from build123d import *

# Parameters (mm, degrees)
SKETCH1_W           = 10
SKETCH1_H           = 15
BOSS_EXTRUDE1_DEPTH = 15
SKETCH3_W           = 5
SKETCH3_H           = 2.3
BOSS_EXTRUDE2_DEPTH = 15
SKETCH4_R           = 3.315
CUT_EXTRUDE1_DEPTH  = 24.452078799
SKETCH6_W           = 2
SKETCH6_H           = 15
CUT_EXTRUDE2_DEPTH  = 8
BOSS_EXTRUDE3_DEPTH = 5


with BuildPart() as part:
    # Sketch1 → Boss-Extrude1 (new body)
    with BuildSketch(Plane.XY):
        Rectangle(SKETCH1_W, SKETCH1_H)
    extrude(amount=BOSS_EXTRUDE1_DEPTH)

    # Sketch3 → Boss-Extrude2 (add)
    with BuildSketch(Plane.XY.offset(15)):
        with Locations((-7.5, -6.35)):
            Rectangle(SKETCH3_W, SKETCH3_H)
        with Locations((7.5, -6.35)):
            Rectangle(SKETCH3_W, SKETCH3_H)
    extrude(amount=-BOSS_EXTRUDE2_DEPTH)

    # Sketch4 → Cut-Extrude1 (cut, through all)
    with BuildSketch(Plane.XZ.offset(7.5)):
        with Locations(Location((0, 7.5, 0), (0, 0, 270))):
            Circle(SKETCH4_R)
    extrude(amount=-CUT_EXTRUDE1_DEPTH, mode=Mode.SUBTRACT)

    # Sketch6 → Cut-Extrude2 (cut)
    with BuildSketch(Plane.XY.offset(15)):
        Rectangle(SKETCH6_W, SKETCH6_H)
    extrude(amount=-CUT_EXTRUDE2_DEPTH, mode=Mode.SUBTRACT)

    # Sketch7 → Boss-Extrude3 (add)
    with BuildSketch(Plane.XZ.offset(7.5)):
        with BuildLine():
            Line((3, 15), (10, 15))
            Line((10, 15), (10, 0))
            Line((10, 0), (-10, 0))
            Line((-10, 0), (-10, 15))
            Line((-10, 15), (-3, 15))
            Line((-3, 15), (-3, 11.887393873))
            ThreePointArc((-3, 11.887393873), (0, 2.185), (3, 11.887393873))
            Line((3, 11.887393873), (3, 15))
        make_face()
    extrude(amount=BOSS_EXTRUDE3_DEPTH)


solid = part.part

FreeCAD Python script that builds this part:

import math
import FreeCAD as App
import Part
import Sketcher

V = App.Vector
Q = App.Units.Quantity

doc = App.newDocument("Part")
body = doc.addObject("PartDesign::Body", "Body")

# Sketch on XY plane
sketch1 = doc.addObject("Sketcher::SketchObject", "Sketch")
body.addObject(sketch1)
sketch1.AttachmentSupport = (doc.XY_Plane, [""])
sketch1.MapMode = "FlatFace"
sketch1.addGeometry(Part.LineSegment(V(-5, 7.5, 0), V(-5, -7.5, 0)), False)
sketch1.addGeometry(Part.LineSegment(V(-5, -7.5, 0), V(5, -7.5, 0)), False)
sketch1.addGeometry(Part.LineSegment(V(5, -7.5, 0), V(5, 7.5, 0)), False)
sketch1.addGeometry(Part.LineSegment(V(5, 7.5, 0), V(-5, 7.5, 0)), False)
sketch1.addConstraint(Sketcher.Constraint("Coincident", 0, 2, 1, 1))
sketch1.addConstraint(Sketcher.Constraint("Coincident", 1, 2, 2, 1))
sketch1.addConstraint(Sketcher.Constraint("Coincident", 2, 2, 3, 1))
sketch1.addConstraint(Sketcher.Constraint("Coincident", 3, 2, 0, 1))
sketch1.addConstraint(Sketcher.Constraint("Vertical", 0))
sketch1.addConstraint(Sketcher.Constraint("Horizontal", 1))
sketch1.addConstraint(Sketcher.Constraint("Vertical", 2))
sketch1.addConstraint(Sketcher.Constraint("Horizontal", 3))
sketch1.addConstraint(Sketcher.Constraint("Symmetric", 0, 2, 2, 2, -1, 1))
sketch1.addConstraint(Sketcher.Constraint("DistanceX", 1, 1, 1, 2, Q("10 mm")))
sketch1.addConstraint(Sketcher.Constraint("DistanceY", 0, 2, 0, 1, Q("15 mm")))
pad1 = doc.addObject("PartDesign::Pad", "Pad")
body.addObject(pad1)
pad1.Profile = sketch1
pad1.Length = 15

# Sketch on XY plane
sketch2 = doc.addObject("Sketcher::SketchObject", "Sketch001")
body.addObject(sketch2)
sketch2.AttachmentSupport = (doc.XY_Plane, [""])
sketch2.MapMode = "FlatFace"
sketch2.AttachmentOffset = App.Placement(V(0, 0, 15), App.Rotation())
sketch2.addGeometry(Part.LineSegment(V(-10, -5.2, 0), V(-10, -7.5, 0)), False)
sketch2.addGeometry(Part.LineSegment(V(-10, -7.5, 0), V(-5, -7.5, 0)), False)
sketch2.addGeometry(Part.LineSegment(V(-5, -7.5, 0), V(-5, -5.2, 0)), False)
sketch2.addGeometry(Part.LineSegment(V(-5, -5.2, 0), V(-10, -5.2, 0)), False)
sketch2.addGeometry(Part.LineSegment(V(5, -5.2, 0), V(5, -7.5, 0)), False)
sketch2.addGeometry(Part.LineSegment(V(5, -7.5, 0), V(10, -7.5, 0)), False)
sketch2.addGeometry(Part.LineSegment(V(10, -7.5, 0), V(10, -5.2, 0)), False)
sketch2.addGeometry(Part.LineSegment(V(10, -5.2, 0), V(5, -5.2, 0)), False)
sketch2.addConstraint(Sketcher.Constraint("Coincident", 0, 2, 1, 1))
sketch2.addConstraint(Sketcher.Constraint("Coincident", 1, 2, 2, 1))
sketch2.addConstraint(Sketcher.Constraint("Coincident", 2, 2, 3, 1))
sketch2.addConstraint(Sketcher.Constraint("Coincident", 3, 2, 0, 1))
sketch2.addConstraint(Sketcher.Constraint("Coincident", 4, 2, 5, 1))
sketch2.addConstraint(Sketcher.Constraint("Coincident", 5, 2, 6, 1))
sketch2.addConstraint(Sketcher.Constraint("Coincident", 6, 2, 7, 1))
sketch2.addConstraint(Sketcher.Constraint("Coincident", 7, 2, 4, 1))
sketch2.addConstraint(Sketcher.Constraint("Vertical", 0))
sketch2.addConstraint(Sketcher.Constraint("Horizontal", 1))
sketch2.addConstraint(Sketcher.Constraint("Vertical", 2))
sketch2.addConstraint(Sketcher.Constraint("Horizontal", 3))
sketch2.addConstraint(Sketcher.Constraint("Vertical", 4))
sketch2.addConstraint(Sketcher.Constraint("Horizontal", 5))
sketch2.addConstraint(Sketcher.Constraint("Vertical", 6))
sketch2.addConstraint(Sketcher.Constraint("Horizontal", 7))
sketch2.addConstraint(Sketcher.Constraint("Symmetric", 1, 2, 4, 2, -2))
sketch2.addConstraint(Sketcher.Constraint("Symmetric", 3, 2, 6, 2, -2))
sketch2.addConstraint(Sketcher.Constraint("DistanceX", 1, 1, 1, 2, Q("5 mm")))
sketch2.addConstraint(Sketcher.Constraint("DistanceY", 0, 2, 0, 1, Q("2.3 mm")))
sketch2.addConstraint(Sketcher.Constraint("DistanceX", 0, 2, -1, 1, Q("10 mm")))
sketch2.addConstraint(Sketcher.Constraint("DistanceY", 0, 2, -1, 1, Q("7.5 mm")))
pad2 = doc.addObject("PartDesign::Pad", "Pad001")
body.addObject(pad2)
pad2.Profile = sketch2
pad2.Length = 15
pad2.Reversed = True

# Sketch on XZ plane
sketch3 = doc.addObject("Sketcher::SketchObject", "Sketch002")
body.addObject(sketch3)
sketch3.AttachmentSupport = (doc.XZ_Plane, [""])
sketch3.MapMode = "FlatFace"
sketch3.AttachmentOffset = App.Placement(V(0, 0, 7.5), App.Rotation())
sketch3.addGeometry(Part.Circle(V(0, 7.5, 0), V(0, 0, 1), 3.315), False)
sketch3.addConstraint(Sketcher.Constraint("PointOnObject", 0, 3, -2))
sketch3.addConstraint(Sketcher.Constraint("Diameter", 0, Q("6.63 mm")))
sketch3.addConstraint(Sketcher.Constraint("DistanceY", -1, 1, 0, 3, Q("7.5 mm")))
pocket1 = doc.addObject("PartDesign::Pocket", "Pocket")
body.addObject(pocket1)
pocket1.Profile = sketch3
pocket1.Type = "ThroughAll"

# Sketch on XY plane
sketch4 = doc.addObject("Sketcher::SketchObject", "Sketch003")
body.addObject(sketch4)
sketch4.AttachmentSupport = (doc.XY_Plane, [""])
sketch4.MapMode = "FlatFace"
sketch4.AttachmentOffset = App.Placement(V(0, 0, 15), App.Rotation())
sketch4.addGeometry(Part.LineSegment(V(-1, 7.5, 0), V(-1, -7.5, 0)), False)
sketch4.addGeometry(Part.LineSegment(V(-1, -7.5, 0), V(1, -7.5, 0)), False)
sketch4.addGeometry(Part.LineSegment(V(1, -7.5, 0), V(1, 7.5, 0)), False)
sketch4.addGeometry(Part.LineSegment(V(1, 7.5, 0), V(-1, 7.5, 0)), False)
sketch4.addConstraint(Sketcher.Constraint("Coincident", 0, 2, 1, 1))
sketch4.addConstraint(Sketcher.Constraint("Coincident", 1, 2, 2, 1))
sketch4.addConstraint(Sketcher.Constraint("Coincident", 2, 2, 3, 1))
sketch4.addConstraint(Sketcher.Constraint("Coincident", 3, 2, 0, 1))
sketch4.addConstraint(Sketcher.Constraint("Vertical", 0))
sketch4.addConstraint(Sketcher.Constraint("Horizontal", 1))
sketch4.addConstraint(Sketcher.Constraint("Vertical", 2))
sketch4.addConstraint(Sketcher.Constraint("Horizontal", 3))
sketch4.addConstraint(Sketcher.Constraint("Symmetric", 0, 2, 2, 2, -1, 1))
sketch4.addConstraint(Sketcher.Constraint("DistanceX", 1, 1, 1, 2, Q("2 mm")))
sketch4.addConstraint(Sketcher.Constraint("DistanceY", 0, 2, 0, 1, Q("15 mm")))
pocket2 = doc.addObject("PartDesign::Pocket", "Pocket001")
body.addObject(pocket2)
pocket2.Profile = sketch4
pocket2.Length = 8

# Sketch on XZ plane
sketch5 = doc.addObject("Sketcher::SketchObject", "Sketch004")
body.addObject(sketch5)
sketch5.AttachmentSupport = (doc.XZ_Plane, [""])
sketch5.MapMode = "FlatFace"
sketch5.AttachmentOffset = App.Placement(V(0, 0, 7.5), App.Rotation())
sketch5.addGeometry(Part.LineSegment(V(10, 15, 0), V(3, 15, 0)), False)
sketch5.addGeometry(Part.LineSegment(V(3, 15, 0), V(3, 11.887394, 0)), False)
sketch5.addGeometry(Part.ArcOfCircle(Part.Circle(V(0, 7.5, 0), V(0, 0, 1), 5.315), math.radians(124.363431), math.radians(415.636569)), False)
sketch5.addGeometry(Part.LineSegment(V(-3, 11.887394, 0), V(-3, 15, 0)), False)
sketch5.addGeometry(Part.LineSegment(V(-3, 15, 0), V(-10, 15, 0)), False)
sketch5.addGeometry(Part.LineSegment(V(-10, 15, 0), V(-10, 0, 0)), False)
sketch5.addGeometry(Part.LineSegment(V(-10, 0, 0), V(10, 0, 0)), False)
sketch5.addGeometry(Part.LineSegment(V(10, 0, 0), V(10, 15, 0)), False)
sketch5.addConstraint(Sketcher.Constraint("Coincident", 0, 2, 1, 1))
sketch5.addConstraint(Sketcher.Constraint("Coincident", 1, 2, 2, 2))
sketch5.addConstraint(Sketcher.Constraint("Coincident", 2, 1, 3, 1))
sketch5.addConstraint(Sketcher.Constraint("Coincident", 3, 2, 4, 1))
sketch5.addConstraint(Sketcher.Constraint("Coincident", 4, 2, 5, 1))
sketch5.addConstraint(Sketcher.Constraint("Coincident", 5, 2, 6, 1))
sketch5.addConstraint(Sketcher.Constraint("Coincident", 6, 2, 7, 1))
sketch5.addConstraint(Sketcher.Constraint("Coincident", 7, 2, 0, 1))
sketch5.addConstraint(Sketcher.Constraint("Horizontal", 0))
sketch5.addConstraint(Sketcher.Constraint("Vertical", 1))
sketch5.addConstraint(Sketcher.Constraint("Vertical", 3))
sketch5.addConstraint(Sketcher.Constraint("Horizontal", 4))
sketch5.addConstraint(Sketcher.Constraint("Vertical", 5))
sketch5.addConstraint(Sketcher.Constraint("Horizontal", 6))
sketch5.addConstraint(Sketcher.Constraint("Vertical", 7))
sketch5.addConstraint(Sketcher.Constraint("Symmetric", 5, 2, 6, 2, -1, 1))
sketch5.addConstraint(Sketcher.Constraint("Symmetric", 1, 2, 2, 1, -2))
sketch5.addConstraint(Sketcher.Constraint("Horizontal", 0, 2, 3, 2))
sketch5.addConstraint(Sketcher.Constraint("DistanceX", 0, 2, 0, 1, Q("7 mm")))
sketch5.addConstraint(Sketcher.Constraint("DistanceX", 6, 1, 6, 2, Q("20 mm")))
sketch5.addConstraint(Sketcher.Constraint("DistanceY", 5, 2, 5, 1, Q("15 mm")))
sketch5.addConstraint(Sketcher.Constraint("Radius", 2, Q("5.315 mm")))
sketch5.addConstraint(Sketcher.Constraint("DistanceY", -1, 1, 2, 3, Q("7.5 mm")))
pad3 = doc.addObject("PartDesign::Pad", "Pad002")
body.addObject(pad3)
pad3.Profile = sketch5
pad3.Length = 5

doc.recompute()
